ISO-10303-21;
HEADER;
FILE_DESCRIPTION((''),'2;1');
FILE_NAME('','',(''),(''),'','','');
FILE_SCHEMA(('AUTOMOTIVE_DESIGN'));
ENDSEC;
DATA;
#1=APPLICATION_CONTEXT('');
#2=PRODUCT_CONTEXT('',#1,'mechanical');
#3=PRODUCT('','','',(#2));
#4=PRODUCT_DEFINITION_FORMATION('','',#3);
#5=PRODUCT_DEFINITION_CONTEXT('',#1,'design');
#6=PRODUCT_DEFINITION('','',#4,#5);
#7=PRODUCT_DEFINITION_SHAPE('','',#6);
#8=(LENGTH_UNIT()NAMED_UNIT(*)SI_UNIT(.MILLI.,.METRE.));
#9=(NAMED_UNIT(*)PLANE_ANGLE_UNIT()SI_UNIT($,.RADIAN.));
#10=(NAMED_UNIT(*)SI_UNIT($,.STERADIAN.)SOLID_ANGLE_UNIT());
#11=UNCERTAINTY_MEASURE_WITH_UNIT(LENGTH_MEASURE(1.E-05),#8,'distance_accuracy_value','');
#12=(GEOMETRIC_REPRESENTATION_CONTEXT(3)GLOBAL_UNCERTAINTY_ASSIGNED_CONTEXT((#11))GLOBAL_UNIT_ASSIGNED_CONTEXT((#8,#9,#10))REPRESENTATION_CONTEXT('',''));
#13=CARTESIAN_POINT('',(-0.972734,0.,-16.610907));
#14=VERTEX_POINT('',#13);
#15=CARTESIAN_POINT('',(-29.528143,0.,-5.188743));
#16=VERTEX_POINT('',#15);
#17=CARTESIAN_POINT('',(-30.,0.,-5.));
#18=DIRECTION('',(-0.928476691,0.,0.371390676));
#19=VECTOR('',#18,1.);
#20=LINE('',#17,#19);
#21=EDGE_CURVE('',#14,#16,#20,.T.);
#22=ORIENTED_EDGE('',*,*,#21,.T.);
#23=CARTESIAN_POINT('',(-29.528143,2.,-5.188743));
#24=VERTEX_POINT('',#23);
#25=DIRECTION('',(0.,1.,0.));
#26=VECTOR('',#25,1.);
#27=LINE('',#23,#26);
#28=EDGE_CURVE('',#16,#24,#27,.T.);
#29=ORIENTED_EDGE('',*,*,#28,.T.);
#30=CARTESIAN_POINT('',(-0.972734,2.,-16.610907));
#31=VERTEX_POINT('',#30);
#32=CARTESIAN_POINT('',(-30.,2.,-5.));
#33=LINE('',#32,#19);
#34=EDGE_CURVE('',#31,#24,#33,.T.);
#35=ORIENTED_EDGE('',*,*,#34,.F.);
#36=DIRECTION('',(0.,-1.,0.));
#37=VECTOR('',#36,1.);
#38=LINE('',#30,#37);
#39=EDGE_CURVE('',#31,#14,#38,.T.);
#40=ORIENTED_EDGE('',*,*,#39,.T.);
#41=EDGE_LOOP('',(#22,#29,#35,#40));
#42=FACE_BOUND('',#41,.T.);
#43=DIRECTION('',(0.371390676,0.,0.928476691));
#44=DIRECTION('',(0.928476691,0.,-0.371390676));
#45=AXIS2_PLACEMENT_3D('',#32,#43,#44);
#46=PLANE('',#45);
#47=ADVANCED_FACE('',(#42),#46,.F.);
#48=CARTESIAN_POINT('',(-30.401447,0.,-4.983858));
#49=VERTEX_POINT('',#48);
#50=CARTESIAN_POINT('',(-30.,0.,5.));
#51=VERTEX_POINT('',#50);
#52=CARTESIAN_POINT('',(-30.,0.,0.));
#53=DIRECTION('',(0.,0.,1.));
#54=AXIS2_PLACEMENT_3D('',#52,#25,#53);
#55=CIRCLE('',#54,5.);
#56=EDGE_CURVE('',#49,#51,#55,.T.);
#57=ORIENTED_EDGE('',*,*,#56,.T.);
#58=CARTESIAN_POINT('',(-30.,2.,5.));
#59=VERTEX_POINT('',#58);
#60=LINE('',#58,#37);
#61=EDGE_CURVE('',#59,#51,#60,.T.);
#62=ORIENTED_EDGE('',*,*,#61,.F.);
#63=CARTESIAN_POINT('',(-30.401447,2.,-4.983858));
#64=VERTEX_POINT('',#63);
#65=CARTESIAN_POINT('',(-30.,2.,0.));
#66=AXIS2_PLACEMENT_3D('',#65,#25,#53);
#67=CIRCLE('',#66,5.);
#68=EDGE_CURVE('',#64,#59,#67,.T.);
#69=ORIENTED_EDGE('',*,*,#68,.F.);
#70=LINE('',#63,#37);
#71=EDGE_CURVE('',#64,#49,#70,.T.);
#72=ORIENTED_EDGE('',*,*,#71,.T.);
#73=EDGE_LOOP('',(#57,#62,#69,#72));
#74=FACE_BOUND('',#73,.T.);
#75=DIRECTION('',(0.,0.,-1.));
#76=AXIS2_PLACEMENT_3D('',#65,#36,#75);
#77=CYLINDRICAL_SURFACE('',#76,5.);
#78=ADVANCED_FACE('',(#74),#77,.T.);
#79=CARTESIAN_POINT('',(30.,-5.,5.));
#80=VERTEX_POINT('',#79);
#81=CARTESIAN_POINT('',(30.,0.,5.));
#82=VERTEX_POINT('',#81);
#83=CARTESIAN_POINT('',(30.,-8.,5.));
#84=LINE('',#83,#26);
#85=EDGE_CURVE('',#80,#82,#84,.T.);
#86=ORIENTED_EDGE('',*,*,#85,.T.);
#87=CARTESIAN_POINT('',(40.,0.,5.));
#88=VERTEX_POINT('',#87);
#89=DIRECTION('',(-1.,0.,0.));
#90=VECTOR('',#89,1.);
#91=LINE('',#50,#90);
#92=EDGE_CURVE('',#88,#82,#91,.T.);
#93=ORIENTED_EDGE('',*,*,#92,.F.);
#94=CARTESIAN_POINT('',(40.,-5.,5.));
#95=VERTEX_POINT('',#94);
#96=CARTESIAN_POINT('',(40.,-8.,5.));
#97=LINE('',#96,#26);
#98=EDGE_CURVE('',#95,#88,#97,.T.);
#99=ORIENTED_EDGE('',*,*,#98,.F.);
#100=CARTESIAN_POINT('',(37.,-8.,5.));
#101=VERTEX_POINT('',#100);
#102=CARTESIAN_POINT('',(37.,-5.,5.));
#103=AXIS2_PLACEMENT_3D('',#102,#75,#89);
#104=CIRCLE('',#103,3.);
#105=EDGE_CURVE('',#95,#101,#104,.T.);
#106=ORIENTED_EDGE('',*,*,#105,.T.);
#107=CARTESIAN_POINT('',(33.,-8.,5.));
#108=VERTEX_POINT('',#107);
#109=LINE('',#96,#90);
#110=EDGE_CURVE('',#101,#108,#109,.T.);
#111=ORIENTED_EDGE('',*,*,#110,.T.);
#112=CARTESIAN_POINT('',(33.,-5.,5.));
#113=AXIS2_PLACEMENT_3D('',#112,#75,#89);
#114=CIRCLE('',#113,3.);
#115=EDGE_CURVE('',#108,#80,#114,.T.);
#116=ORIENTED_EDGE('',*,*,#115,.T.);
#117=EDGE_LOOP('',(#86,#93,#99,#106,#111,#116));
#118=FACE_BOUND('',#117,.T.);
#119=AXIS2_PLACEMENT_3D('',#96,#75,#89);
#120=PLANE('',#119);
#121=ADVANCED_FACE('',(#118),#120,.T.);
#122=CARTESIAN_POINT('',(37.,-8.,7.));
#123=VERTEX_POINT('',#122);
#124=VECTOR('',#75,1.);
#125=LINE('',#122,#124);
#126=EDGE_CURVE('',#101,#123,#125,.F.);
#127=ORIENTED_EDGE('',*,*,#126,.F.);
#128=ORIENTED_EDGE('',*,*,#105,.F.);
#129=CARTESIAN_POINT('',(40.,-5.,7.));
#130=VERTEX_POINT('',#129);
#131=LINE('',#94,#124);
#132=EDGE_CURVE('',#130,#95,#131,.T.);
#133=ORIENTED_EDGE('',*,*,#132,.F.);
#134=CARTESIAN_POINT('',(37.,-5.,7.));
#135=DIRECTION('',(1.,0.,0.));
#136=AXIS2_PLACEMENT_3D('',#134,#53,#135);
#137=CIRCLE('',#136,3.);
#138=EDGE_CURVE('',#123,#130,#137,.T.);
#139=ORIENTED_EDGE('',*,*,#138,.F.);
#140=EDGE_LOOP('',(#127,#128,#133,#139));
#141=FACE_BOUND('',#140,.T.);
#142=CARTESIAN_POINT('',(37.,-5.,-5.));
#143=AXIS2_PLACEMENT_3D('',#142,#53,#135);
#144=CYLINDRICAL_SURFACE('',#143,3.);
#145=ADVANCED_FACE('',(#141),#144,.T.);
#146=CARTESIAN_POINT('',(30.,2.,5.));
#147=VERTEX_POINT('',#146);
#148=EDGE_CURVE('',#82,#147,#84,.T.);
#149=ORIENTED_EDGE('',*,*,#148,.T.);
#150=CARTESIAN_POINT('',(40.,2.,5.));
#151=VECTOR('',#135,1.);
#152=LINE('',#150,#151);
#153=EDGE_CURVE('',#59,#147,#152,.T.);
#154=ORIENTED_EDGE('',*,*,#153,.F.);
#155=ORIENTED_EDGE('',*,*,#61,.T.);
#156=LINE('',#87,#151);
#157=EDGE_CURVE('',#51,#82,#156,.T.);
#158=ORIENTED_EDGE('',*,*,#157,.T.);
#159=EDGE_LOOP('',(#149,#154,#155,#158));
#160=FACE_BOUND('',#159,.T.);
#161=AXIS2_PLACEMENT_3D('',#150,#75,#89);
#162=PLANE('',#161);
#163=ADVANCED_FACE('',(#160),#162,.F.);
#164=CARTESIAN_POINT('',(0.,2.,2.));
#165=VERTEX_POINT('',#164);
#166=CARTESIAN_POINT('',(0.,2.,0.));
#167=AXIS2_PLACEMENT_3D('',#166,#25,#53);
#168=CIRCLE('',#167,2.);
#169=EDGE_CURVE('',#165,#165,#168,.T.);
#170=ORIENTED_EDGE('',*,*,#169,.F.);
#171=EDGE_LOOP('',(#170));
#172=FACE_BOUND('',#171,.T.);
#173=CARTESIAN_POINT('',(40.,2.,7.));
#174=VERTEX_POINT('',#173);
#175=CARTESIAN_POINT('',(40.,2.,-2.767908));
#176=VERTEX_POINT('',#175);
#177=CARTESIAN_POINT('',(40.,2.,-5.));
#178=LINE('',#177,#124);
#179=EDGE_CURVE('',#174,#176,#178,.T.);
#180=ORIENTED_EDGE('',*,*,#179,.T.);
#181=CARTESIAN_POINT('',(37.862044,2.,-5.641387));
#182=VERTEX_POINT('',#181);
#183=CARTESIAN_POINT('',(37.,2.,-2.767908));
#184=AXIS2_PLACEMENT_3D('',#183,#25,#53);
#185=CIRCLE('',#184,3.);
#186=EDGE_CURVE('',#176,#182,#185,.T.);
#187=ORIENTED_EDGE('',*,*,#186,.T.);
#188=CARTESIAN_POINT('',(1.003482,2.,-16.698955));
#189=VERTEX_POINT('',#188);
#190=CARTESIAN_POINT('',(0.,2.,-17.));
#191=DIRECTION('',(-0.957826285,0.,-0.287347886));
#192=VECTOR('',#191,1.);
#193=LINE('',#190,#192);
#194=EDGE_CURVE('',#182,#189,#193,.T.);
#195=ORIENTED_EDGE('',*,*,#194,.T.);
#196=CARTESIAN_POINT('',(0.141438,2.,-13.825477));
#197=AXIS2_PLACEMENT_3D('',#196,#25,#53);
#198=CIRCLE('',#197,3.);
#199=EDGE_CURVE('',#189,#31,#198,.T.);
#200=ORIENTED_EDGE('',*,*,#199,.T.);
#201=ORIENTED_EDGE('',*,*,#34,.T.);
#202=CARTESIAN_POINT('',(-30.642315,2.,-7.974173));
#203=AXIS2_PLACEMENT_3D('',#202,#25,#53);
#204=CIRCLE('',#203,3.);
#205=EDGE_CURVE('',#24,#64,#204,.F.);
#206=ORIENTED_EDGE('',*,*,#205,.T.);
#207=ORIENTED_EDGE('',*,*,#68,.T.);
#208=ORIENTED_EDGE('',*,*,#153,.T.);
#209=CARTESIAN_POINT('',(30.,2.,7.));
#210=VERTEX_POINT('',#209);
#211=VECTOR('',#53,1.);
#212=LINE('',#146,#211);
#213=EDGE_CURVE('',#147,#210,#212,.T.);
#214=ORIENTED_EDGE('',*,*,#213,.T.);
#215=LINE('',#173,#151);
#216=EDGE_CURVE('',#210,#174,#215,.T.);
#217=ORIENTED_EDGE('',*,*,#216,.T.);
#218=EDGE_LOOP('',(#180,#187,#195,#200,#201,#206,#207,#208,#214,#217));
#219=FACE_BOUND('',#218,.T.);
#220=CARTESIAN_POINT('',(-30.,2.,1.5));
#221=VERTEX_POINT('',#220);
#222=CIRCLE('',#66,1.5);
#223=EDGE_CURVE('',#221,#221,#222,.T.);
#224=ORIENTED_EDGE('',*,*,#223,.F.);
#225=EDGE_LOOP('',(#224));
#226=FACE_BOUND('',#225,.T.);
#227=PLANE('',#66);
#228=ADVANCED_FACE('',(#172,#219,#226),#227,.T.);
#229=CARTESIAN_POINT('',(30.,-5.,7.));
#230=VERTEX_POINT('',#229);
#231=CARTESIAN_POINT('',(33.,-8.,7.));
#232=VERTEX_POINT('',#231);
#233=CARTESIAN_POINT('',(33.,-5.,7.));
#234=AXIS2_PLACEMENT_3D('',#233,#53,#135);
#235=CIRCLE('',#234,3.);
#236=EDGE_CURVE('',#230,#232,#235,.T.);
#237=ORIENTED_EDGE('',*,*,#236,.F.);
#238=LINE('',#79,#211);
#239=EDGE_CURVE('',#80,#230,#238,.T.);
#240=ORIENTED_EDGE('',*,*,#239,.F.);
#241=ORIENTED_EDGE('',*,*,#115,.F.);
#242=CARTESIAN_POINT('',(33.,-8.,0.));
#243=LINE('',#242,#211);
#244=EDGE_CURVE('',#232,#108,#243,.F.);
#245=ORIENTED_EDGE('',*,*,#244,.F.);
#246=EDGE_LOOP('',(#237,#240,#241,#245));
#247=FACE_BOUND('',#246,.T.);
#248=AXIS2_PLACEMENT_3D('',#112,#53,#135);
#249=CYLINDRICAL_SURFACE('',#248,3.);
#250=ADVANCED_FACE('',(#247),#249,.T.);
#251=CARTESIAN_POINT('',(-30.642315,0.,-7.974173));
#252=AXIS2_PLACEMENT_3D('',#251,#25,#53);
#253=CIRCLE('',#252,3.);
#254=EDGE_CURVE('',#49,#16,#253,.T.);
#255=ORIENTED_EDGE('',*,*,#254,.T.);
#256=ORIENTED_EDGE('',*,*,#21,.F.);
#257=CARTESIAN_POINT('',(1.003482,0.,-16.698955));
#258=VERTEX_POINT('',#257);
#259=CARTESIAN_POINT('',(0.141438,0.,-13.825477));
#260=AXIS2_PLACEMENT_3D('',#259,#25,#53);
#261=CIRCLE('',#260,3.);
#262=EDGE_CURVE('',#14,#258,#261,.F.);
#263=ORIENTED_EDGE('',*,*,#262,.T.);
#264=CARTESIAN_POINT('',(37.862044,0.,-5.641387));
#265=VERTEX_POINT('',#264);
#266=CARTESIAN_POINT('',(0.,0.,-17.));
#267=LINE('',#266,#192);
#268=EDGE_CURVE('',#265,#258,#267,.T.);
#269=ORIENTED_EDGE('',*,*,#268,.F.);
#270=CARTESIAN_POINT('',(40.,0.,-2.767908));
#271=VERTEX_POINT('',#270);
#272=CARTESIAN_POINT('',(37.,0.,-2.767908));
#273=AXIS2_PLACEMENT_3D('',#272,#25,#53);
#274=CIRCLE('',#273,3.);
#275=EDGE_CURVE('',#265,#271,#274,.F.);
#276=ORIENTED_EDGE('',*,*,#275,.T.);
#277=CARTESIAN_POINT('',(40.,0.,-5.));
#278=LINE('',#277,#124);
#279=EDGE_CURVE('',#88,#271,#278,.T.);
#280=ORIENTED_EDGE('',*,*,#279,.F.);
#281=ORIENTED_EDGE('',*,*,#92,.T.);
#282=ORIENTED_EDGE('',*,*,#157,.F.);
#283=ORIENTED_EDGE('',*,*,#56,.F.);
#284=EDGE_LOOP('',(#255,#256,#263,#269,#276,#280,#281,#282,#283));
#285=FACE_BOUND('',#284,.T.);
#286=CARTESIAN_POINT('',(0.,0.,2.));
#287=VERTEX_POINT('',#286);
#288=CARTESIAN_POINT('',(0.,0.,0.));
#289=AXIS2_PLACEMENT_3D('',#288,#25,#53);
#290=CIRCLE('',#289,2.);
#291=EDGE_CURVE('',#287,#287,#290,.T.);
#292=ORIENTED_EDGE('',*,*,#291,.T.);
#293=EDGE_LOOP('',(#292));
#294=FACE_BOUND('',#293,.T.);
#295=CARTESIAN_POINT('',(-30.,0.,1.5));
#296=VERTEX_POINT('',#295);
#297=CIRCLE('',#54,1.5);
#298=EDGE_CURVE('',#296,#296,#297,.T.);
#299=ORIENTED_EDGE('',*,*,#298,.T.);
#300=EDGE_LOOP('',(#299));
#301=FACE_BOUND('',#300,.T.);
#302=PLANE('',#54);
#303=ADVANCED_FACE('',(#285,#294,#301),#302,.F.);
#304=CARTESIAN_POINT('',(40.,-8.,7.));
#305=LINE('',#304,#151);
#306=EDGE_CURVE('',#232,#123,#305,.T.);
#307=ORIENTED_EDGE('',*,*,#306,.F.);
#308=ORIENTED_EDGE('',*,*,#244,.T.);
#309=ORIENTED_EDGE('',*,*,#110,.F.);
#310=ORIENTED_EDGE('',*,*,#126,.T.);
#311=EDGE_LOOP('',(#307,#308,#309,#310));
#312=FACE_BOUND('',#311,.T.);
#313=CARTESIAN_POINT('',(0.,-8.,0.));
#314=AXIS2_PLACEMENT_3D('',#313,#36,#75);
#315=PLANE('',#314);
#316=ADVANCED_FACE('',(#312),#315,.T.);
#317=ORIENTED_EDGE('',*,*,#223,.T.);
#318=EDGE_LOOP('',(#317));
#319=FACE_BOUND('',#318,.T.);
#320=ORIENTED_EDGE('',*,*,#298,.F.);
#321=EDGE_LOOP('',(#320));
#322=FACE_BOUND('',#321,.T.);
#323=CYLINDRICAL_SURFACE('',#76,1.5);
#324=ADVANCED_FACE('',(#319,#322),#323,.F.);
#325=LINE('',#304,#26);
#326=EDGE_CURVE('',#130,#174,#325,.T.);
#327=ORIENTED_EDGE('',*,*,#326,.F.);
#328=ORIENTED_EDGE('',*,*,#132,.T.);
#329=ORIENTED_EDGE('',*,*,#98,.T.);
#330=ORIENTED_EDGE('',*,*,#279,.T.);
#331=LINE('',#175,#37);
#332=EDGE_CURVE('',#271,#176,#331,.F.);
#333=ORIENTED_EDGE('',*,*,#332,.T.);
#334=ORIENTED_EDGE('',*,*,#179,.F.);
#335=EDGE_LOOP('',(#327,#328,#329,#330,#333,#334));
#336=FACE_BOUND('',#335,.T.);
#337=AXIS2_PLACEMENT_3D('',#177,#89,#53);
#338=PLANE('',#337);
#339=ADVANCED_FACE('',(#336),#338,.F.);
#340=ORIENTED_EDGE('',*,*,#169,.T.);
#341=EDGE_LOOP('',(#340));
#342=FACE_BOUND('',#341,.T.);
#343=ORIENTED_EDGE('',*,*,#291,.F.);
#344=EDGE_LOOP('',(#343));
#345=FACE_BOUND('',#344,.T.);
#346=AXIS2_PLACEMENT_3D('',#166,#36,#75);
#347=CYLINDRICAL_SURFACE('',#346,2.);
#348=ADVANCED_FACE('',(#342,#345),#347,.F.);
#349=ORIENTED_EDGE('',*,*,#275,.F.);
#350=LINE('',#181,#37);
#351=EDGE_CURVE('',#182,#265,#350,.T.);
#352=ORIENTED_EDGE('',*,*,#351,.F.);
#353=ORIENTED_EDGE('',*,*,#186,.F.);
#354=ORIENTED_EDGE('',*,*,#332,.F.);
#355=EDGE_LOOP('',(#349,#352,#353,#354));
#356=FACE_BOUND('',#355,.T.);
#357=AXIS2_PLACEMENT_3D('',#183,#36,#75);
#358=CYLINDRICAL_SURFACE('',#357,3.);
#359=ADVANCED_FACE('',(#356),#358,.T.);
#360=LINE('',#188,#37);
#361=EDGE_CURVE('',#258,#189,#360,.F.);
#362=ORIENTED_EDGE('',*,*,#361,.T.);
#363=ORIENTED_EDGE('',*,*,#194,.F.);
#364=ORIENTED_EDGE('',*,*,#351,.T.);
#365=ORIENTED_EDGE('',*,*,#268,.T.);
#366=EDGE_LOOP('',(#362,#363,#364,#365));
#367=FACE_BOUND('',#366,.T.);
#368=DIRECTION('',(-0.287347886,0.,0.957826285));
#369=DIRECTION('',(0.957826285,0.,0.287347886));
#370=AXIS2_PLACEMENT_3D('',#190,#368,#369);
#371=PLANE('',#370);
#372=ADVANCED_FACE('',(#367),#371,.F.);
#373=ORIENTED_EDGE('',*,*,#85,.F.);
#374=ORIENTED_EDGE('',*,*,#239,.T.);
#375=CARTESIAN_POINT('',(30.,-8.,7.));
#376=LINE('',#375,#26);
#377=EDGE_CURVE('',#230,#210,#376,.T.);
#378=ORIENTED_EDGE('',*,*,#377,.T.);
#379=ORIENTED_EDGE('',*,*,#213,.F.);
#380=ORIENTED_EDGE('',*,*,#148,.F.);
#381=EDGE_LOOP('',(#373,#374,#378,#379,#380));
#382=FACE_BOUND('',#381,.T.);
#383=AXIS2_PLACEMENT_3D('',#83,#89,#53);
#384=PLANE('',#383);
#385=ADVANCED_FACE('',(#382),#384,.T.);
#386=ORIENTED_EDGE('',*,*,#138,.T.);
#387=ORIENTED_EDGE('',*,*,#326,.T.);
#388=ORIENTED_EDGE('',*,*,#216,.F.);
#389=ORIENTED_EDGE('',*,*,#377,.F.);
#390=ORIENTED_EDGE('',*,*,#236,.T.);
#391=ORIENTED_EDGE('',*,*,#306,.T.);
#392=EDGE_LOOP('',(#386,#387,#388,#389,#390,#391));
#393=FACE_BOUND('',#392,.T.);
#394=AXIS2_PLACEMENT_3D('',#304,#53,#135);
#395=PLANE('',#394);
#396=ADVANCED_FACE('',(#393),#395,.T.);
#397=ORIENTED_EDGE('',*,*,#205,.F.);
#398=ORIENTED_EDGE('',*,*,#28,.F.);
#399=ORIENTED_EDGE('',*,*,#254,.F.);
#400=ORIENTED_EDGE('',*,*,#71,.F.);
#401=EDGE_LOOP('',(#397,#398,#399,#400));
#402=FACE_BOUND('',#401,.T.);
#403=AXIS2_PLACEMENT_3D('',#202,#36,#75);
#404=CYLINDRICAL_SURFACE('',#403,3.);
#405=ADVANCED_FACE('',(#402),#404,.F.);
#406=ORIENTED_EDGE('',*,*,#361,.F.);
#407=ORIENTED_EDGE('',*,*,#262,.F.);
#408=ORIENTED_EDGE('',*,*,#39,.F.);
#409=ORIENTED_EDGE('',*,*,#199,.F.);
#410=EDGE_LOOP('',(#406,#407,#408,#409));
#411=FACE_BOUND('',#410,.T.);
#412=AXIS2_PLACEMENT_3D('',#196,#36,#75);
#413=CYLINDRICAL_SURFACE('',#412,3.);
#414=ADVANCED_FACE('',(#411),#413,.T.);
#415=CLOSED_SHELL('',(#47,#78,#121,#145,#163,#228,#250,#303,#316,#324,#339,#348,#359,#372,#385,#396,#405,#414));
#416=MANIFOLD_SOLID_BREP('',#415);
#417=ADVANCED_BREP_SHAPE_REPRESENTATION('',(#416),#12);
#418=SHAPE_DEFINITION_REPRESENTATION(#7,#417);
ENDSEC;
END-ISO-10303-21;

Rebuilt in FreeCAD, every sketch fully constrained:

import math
import FreeCAD as App
import Part
import Sketcher
Q = App.Units.Quantity


def edges_at(feature, points):
    """Names of the edges that pass closest to the given points."""
    edges = feature.Shape.Edges
    near = lambda p: min(range(len(edges)), key=lambda i: edges[i].distToShape(Part.Vertex(*p))[0])
    return sorted({f"Edge{near(p) + 1}" for p in points})

doc = App.newDocument("Part")
params = doc.addObject("Spreadsheet::Sheet", "Params")
for row, (alias, value) in enumerate([
    ("sketch1_diameter", "4 mm"),
    ("sketch1_diameter2", "3 mm"),
    ("sketch1_radius", "5 mm"),
    ("sketch1_width", "70 mm"),
    ("pad1_length", "2 mm"),
    ("sketch2_width", "10 mm"),
    ("sketch2_height", "2 mm"),
    ("pad2_length", "10 mm"),
    ("fillet_radius", "3 mm"),
    ("fillet2_radius", "3 mm"),
], start=1):
    params.set(f"A{row}", alias)
    params.set(f"B{row}", "=" + value)
    params.setAlias(f"B{row}", alias)

body = doc.addObject("PartDesign::Body", "Body")

# Sketch on XZ plane
sketch1 = doc.addObject("Sketcher::SketchObject", "Sketch")
body.addObject(sketch1)
sketch1.AttachmentSupport = (doc.XZ_Plane, [""])
sketch1.MapMode = "FlatFace"
sketch1.addGeometry(Part.LineSegment(App.Vector(0, -17, 0), App.Vector(-30, -5, 0)), False)
sketch1.addGeometry(Part.ArcOfCircle(Part.Circle(App.Vector(-30, 0, 0), App.Vector(0, 0, 1), 5), math.radians(90), math.radians(270)), False)
sketch1.addGeometry(Part.LineSegment(App.Vector(-30, 5, 0), App.Vector(40, 5, 0)), False)
sketch1.addGeometry(Part.LineSegment(App.Vector(40, 5, 0), App.Vector(40, -5, 0)), False)
sketch1.addGeometry(Part.LineSegment(App.Vector(40, -5, 0), App.Vector(0, -17, 0)), False)
sketch1.addGeometry(Part.Circle(App.Vector(0, 0, 0), App.Vector(0, 0, 1), 2), False)
sketch1.addGeometry(Part.Circle(App.Vector(-30, 0, 0), App.Vector(0, 0, 1), 1.5), False)
sketch1.addConstraint(Sketcher.Constraint("Coincident", 0, 2, 1, 2))
sketch1.addConstraint(Sketcher.Constraint("Tangent", 1, 1, 2, 1))
sketch1.addConstraint(Sketcher.Constraint("Coincident", 2, 2, 3, 1))
sketch1.addConstraint(Sketcher.Constraint("Coincident", 3, 2, 4, 1))
sketch1.addConstraint(Sketcher.Constraint("Coincident", 4, 2, 0, 1))
sketch1.addConstraint(Sketcher.Constraint("Horizontal", 2))
sketch1.addConstraint(Sketcher.Constraint("Vertical", 3))
sketch1.addConstraint(Sketcher.Constraint("Coincident", 5, 3, -1, 1))
sketch1.addConstraint(Sketcher.Constraint("Coincident", 6, 3, 1, 3))
sketch1.addConstraint(Sketcher.Constraint("Symmetric", 0, 2, 1, 1, -1))
sketch1.addConstraint(Sketcher.Constraint("PointOnObject", 4, 2, -2))
sketch1.addConstraint(Sketcher.Constraint("Horizontal", 0, 2, 3, 2))
sketch1.addConstraint(Sketcher.Constraint("Diameter", 5, Q("4 mm")))
sketch1.addConstraint(Sketcher.Constraint("Diameter", 6, Q("3 mm")))
sketch1.addConstraint(Sketcher.Constraint("Radius", 1, Q("5 mm")))
sketch1.addConstraint(Sketcher.Constraint("DistanceX", 2, 1, 2, 2, Q("70 mm")))
sketch1.addConstraint(Sketcher.Constraint("DistanceX", 1, 3, -1, 1, Q("30 mm")))
sketch1.addConstraint(Sketcher.Constraint("DistanceY", 4, 2, -1, 1, Q("17 mm")))
sketch1.setExpression("Constraints[12]", "Params.sketch1_diameter")
sketch1.setExpression("Constraints[13]", "Params.sketch1_diameter2")
sketch1.setExpression("Constraints[14]", "Params.sketch1_radius")
sketch1.setExpression("Constraints[15]", "Params.sketch1_width")
pad1 = doc.addObject("PartDesign::Pad", "Pad")
body.addObject(pad1)
pad1.Profile = sketch1
pad1.setExpression("Length", "Params.pad1_length")
pad1.Reversed = True

# Sketch on XZ plane
sketch2 = doc.addObject("Sketcher::SketchObject", "Sketch001")
body.addObject(sketch2)
sketch2.AttachmentSupport = (doc.XZ_Plane, [""])
sketch2.MapMode = "FlatFace"
sketch2.AttachmentOffset = App.Placement(App.Vector(0, 0, -2), App.Rotation())
sketch2.addGeometry(Part.LineSegment(App.Vector(30, 5, 0), App.Vector(30, 7, 0)), False)
sketch2.addGeometry(Part.LineSegment(App.Vector(30, 7, 0), App.Vector(40, 7, 0)), False)
sketch2.addGeometry(Part.LineSegment(App.Vector(40, 7, 0), App.Vector(40, 5, 0)), False)
sketch2.addGeometry(Part.LineSegment(App.Vector(40, 5, 0), App.Vector(30, 5, 0)), False)
sketch2.addConstraint(Sketcher.Constraint("Coincident", 0, 2, 1, 1))
sketch2.addConstraint(Sketcher.Constraint("Coincident", 1, 2, 2, 1))
sketch2.addConstraint(Sketcher.Constraint("Coincident", 2, 2, 3, 1))
sketch2.addConstraint(Sketcher.Constraint("Coincident", 3, 2, 0, 1))
sketch2.addConstraint(Sketcher.Constraint("Vertical", 0))
sketch2.addConstraint(Sketcher.Constraint("Horizontal", 1))
sketch2.addConstraint(Sketcher.Constraint("Vertical", 2))
sketch2.addConstraint(Sketcher.Constraint("Horizontal", 3))
sketch2.addConstraint(Sketcher.Constraint("DistanceX", 1, 1, 1, 2, Q("10 mm")))
sketch2.addConstraint(Sketcher.Constraint("DistanceY", 0, 1, 0, 2, Q("2 mm")))
sketch2.addConstraint(Sketcher.Constraint("DistanceX", -1, 1, 0, 2, Q("30 mm")))
sketch2.addConstraint(Sketcher.Constraint("DistanceY", -1, 1, 0, 2, Q("7 mm")))
sketch2.setExpression("Constraints[8]", "Params.sketch2_width")
sketch2.setExpression("Constraints[9]", "Params.sketch2_height")
pad2 = doc.addObject("PartDesign::Pad", "Pad001")
body.addObject(pad2)
pad2.Profile = sketch2
pad2.setExpression("Length", "Params.pad2_length")
doc.recompute()

fillet = doc.addObject("PartDesign::Fillet", "Fillet")
body.addObject(fillet)
fillet.Base = (pad2, edges_at(pad2, [(-30, 1, -5), (0, 1, -17), (40, 1, -5)]))
fillet.setExpression("Radius", "Params.fillet_radius")
doc.recompute()

fillet2 = doc.addObject("PartDesign::Fillet", "Fillet001")
body.addObject(fillet2)
fillet2.Base = (fillet, edges_at(fillet, [(40, -8, 6), (30, -8, 6)]))
fillet2.setExpression("Radius", "Params.fillet2_radius")

doc.recompute()
